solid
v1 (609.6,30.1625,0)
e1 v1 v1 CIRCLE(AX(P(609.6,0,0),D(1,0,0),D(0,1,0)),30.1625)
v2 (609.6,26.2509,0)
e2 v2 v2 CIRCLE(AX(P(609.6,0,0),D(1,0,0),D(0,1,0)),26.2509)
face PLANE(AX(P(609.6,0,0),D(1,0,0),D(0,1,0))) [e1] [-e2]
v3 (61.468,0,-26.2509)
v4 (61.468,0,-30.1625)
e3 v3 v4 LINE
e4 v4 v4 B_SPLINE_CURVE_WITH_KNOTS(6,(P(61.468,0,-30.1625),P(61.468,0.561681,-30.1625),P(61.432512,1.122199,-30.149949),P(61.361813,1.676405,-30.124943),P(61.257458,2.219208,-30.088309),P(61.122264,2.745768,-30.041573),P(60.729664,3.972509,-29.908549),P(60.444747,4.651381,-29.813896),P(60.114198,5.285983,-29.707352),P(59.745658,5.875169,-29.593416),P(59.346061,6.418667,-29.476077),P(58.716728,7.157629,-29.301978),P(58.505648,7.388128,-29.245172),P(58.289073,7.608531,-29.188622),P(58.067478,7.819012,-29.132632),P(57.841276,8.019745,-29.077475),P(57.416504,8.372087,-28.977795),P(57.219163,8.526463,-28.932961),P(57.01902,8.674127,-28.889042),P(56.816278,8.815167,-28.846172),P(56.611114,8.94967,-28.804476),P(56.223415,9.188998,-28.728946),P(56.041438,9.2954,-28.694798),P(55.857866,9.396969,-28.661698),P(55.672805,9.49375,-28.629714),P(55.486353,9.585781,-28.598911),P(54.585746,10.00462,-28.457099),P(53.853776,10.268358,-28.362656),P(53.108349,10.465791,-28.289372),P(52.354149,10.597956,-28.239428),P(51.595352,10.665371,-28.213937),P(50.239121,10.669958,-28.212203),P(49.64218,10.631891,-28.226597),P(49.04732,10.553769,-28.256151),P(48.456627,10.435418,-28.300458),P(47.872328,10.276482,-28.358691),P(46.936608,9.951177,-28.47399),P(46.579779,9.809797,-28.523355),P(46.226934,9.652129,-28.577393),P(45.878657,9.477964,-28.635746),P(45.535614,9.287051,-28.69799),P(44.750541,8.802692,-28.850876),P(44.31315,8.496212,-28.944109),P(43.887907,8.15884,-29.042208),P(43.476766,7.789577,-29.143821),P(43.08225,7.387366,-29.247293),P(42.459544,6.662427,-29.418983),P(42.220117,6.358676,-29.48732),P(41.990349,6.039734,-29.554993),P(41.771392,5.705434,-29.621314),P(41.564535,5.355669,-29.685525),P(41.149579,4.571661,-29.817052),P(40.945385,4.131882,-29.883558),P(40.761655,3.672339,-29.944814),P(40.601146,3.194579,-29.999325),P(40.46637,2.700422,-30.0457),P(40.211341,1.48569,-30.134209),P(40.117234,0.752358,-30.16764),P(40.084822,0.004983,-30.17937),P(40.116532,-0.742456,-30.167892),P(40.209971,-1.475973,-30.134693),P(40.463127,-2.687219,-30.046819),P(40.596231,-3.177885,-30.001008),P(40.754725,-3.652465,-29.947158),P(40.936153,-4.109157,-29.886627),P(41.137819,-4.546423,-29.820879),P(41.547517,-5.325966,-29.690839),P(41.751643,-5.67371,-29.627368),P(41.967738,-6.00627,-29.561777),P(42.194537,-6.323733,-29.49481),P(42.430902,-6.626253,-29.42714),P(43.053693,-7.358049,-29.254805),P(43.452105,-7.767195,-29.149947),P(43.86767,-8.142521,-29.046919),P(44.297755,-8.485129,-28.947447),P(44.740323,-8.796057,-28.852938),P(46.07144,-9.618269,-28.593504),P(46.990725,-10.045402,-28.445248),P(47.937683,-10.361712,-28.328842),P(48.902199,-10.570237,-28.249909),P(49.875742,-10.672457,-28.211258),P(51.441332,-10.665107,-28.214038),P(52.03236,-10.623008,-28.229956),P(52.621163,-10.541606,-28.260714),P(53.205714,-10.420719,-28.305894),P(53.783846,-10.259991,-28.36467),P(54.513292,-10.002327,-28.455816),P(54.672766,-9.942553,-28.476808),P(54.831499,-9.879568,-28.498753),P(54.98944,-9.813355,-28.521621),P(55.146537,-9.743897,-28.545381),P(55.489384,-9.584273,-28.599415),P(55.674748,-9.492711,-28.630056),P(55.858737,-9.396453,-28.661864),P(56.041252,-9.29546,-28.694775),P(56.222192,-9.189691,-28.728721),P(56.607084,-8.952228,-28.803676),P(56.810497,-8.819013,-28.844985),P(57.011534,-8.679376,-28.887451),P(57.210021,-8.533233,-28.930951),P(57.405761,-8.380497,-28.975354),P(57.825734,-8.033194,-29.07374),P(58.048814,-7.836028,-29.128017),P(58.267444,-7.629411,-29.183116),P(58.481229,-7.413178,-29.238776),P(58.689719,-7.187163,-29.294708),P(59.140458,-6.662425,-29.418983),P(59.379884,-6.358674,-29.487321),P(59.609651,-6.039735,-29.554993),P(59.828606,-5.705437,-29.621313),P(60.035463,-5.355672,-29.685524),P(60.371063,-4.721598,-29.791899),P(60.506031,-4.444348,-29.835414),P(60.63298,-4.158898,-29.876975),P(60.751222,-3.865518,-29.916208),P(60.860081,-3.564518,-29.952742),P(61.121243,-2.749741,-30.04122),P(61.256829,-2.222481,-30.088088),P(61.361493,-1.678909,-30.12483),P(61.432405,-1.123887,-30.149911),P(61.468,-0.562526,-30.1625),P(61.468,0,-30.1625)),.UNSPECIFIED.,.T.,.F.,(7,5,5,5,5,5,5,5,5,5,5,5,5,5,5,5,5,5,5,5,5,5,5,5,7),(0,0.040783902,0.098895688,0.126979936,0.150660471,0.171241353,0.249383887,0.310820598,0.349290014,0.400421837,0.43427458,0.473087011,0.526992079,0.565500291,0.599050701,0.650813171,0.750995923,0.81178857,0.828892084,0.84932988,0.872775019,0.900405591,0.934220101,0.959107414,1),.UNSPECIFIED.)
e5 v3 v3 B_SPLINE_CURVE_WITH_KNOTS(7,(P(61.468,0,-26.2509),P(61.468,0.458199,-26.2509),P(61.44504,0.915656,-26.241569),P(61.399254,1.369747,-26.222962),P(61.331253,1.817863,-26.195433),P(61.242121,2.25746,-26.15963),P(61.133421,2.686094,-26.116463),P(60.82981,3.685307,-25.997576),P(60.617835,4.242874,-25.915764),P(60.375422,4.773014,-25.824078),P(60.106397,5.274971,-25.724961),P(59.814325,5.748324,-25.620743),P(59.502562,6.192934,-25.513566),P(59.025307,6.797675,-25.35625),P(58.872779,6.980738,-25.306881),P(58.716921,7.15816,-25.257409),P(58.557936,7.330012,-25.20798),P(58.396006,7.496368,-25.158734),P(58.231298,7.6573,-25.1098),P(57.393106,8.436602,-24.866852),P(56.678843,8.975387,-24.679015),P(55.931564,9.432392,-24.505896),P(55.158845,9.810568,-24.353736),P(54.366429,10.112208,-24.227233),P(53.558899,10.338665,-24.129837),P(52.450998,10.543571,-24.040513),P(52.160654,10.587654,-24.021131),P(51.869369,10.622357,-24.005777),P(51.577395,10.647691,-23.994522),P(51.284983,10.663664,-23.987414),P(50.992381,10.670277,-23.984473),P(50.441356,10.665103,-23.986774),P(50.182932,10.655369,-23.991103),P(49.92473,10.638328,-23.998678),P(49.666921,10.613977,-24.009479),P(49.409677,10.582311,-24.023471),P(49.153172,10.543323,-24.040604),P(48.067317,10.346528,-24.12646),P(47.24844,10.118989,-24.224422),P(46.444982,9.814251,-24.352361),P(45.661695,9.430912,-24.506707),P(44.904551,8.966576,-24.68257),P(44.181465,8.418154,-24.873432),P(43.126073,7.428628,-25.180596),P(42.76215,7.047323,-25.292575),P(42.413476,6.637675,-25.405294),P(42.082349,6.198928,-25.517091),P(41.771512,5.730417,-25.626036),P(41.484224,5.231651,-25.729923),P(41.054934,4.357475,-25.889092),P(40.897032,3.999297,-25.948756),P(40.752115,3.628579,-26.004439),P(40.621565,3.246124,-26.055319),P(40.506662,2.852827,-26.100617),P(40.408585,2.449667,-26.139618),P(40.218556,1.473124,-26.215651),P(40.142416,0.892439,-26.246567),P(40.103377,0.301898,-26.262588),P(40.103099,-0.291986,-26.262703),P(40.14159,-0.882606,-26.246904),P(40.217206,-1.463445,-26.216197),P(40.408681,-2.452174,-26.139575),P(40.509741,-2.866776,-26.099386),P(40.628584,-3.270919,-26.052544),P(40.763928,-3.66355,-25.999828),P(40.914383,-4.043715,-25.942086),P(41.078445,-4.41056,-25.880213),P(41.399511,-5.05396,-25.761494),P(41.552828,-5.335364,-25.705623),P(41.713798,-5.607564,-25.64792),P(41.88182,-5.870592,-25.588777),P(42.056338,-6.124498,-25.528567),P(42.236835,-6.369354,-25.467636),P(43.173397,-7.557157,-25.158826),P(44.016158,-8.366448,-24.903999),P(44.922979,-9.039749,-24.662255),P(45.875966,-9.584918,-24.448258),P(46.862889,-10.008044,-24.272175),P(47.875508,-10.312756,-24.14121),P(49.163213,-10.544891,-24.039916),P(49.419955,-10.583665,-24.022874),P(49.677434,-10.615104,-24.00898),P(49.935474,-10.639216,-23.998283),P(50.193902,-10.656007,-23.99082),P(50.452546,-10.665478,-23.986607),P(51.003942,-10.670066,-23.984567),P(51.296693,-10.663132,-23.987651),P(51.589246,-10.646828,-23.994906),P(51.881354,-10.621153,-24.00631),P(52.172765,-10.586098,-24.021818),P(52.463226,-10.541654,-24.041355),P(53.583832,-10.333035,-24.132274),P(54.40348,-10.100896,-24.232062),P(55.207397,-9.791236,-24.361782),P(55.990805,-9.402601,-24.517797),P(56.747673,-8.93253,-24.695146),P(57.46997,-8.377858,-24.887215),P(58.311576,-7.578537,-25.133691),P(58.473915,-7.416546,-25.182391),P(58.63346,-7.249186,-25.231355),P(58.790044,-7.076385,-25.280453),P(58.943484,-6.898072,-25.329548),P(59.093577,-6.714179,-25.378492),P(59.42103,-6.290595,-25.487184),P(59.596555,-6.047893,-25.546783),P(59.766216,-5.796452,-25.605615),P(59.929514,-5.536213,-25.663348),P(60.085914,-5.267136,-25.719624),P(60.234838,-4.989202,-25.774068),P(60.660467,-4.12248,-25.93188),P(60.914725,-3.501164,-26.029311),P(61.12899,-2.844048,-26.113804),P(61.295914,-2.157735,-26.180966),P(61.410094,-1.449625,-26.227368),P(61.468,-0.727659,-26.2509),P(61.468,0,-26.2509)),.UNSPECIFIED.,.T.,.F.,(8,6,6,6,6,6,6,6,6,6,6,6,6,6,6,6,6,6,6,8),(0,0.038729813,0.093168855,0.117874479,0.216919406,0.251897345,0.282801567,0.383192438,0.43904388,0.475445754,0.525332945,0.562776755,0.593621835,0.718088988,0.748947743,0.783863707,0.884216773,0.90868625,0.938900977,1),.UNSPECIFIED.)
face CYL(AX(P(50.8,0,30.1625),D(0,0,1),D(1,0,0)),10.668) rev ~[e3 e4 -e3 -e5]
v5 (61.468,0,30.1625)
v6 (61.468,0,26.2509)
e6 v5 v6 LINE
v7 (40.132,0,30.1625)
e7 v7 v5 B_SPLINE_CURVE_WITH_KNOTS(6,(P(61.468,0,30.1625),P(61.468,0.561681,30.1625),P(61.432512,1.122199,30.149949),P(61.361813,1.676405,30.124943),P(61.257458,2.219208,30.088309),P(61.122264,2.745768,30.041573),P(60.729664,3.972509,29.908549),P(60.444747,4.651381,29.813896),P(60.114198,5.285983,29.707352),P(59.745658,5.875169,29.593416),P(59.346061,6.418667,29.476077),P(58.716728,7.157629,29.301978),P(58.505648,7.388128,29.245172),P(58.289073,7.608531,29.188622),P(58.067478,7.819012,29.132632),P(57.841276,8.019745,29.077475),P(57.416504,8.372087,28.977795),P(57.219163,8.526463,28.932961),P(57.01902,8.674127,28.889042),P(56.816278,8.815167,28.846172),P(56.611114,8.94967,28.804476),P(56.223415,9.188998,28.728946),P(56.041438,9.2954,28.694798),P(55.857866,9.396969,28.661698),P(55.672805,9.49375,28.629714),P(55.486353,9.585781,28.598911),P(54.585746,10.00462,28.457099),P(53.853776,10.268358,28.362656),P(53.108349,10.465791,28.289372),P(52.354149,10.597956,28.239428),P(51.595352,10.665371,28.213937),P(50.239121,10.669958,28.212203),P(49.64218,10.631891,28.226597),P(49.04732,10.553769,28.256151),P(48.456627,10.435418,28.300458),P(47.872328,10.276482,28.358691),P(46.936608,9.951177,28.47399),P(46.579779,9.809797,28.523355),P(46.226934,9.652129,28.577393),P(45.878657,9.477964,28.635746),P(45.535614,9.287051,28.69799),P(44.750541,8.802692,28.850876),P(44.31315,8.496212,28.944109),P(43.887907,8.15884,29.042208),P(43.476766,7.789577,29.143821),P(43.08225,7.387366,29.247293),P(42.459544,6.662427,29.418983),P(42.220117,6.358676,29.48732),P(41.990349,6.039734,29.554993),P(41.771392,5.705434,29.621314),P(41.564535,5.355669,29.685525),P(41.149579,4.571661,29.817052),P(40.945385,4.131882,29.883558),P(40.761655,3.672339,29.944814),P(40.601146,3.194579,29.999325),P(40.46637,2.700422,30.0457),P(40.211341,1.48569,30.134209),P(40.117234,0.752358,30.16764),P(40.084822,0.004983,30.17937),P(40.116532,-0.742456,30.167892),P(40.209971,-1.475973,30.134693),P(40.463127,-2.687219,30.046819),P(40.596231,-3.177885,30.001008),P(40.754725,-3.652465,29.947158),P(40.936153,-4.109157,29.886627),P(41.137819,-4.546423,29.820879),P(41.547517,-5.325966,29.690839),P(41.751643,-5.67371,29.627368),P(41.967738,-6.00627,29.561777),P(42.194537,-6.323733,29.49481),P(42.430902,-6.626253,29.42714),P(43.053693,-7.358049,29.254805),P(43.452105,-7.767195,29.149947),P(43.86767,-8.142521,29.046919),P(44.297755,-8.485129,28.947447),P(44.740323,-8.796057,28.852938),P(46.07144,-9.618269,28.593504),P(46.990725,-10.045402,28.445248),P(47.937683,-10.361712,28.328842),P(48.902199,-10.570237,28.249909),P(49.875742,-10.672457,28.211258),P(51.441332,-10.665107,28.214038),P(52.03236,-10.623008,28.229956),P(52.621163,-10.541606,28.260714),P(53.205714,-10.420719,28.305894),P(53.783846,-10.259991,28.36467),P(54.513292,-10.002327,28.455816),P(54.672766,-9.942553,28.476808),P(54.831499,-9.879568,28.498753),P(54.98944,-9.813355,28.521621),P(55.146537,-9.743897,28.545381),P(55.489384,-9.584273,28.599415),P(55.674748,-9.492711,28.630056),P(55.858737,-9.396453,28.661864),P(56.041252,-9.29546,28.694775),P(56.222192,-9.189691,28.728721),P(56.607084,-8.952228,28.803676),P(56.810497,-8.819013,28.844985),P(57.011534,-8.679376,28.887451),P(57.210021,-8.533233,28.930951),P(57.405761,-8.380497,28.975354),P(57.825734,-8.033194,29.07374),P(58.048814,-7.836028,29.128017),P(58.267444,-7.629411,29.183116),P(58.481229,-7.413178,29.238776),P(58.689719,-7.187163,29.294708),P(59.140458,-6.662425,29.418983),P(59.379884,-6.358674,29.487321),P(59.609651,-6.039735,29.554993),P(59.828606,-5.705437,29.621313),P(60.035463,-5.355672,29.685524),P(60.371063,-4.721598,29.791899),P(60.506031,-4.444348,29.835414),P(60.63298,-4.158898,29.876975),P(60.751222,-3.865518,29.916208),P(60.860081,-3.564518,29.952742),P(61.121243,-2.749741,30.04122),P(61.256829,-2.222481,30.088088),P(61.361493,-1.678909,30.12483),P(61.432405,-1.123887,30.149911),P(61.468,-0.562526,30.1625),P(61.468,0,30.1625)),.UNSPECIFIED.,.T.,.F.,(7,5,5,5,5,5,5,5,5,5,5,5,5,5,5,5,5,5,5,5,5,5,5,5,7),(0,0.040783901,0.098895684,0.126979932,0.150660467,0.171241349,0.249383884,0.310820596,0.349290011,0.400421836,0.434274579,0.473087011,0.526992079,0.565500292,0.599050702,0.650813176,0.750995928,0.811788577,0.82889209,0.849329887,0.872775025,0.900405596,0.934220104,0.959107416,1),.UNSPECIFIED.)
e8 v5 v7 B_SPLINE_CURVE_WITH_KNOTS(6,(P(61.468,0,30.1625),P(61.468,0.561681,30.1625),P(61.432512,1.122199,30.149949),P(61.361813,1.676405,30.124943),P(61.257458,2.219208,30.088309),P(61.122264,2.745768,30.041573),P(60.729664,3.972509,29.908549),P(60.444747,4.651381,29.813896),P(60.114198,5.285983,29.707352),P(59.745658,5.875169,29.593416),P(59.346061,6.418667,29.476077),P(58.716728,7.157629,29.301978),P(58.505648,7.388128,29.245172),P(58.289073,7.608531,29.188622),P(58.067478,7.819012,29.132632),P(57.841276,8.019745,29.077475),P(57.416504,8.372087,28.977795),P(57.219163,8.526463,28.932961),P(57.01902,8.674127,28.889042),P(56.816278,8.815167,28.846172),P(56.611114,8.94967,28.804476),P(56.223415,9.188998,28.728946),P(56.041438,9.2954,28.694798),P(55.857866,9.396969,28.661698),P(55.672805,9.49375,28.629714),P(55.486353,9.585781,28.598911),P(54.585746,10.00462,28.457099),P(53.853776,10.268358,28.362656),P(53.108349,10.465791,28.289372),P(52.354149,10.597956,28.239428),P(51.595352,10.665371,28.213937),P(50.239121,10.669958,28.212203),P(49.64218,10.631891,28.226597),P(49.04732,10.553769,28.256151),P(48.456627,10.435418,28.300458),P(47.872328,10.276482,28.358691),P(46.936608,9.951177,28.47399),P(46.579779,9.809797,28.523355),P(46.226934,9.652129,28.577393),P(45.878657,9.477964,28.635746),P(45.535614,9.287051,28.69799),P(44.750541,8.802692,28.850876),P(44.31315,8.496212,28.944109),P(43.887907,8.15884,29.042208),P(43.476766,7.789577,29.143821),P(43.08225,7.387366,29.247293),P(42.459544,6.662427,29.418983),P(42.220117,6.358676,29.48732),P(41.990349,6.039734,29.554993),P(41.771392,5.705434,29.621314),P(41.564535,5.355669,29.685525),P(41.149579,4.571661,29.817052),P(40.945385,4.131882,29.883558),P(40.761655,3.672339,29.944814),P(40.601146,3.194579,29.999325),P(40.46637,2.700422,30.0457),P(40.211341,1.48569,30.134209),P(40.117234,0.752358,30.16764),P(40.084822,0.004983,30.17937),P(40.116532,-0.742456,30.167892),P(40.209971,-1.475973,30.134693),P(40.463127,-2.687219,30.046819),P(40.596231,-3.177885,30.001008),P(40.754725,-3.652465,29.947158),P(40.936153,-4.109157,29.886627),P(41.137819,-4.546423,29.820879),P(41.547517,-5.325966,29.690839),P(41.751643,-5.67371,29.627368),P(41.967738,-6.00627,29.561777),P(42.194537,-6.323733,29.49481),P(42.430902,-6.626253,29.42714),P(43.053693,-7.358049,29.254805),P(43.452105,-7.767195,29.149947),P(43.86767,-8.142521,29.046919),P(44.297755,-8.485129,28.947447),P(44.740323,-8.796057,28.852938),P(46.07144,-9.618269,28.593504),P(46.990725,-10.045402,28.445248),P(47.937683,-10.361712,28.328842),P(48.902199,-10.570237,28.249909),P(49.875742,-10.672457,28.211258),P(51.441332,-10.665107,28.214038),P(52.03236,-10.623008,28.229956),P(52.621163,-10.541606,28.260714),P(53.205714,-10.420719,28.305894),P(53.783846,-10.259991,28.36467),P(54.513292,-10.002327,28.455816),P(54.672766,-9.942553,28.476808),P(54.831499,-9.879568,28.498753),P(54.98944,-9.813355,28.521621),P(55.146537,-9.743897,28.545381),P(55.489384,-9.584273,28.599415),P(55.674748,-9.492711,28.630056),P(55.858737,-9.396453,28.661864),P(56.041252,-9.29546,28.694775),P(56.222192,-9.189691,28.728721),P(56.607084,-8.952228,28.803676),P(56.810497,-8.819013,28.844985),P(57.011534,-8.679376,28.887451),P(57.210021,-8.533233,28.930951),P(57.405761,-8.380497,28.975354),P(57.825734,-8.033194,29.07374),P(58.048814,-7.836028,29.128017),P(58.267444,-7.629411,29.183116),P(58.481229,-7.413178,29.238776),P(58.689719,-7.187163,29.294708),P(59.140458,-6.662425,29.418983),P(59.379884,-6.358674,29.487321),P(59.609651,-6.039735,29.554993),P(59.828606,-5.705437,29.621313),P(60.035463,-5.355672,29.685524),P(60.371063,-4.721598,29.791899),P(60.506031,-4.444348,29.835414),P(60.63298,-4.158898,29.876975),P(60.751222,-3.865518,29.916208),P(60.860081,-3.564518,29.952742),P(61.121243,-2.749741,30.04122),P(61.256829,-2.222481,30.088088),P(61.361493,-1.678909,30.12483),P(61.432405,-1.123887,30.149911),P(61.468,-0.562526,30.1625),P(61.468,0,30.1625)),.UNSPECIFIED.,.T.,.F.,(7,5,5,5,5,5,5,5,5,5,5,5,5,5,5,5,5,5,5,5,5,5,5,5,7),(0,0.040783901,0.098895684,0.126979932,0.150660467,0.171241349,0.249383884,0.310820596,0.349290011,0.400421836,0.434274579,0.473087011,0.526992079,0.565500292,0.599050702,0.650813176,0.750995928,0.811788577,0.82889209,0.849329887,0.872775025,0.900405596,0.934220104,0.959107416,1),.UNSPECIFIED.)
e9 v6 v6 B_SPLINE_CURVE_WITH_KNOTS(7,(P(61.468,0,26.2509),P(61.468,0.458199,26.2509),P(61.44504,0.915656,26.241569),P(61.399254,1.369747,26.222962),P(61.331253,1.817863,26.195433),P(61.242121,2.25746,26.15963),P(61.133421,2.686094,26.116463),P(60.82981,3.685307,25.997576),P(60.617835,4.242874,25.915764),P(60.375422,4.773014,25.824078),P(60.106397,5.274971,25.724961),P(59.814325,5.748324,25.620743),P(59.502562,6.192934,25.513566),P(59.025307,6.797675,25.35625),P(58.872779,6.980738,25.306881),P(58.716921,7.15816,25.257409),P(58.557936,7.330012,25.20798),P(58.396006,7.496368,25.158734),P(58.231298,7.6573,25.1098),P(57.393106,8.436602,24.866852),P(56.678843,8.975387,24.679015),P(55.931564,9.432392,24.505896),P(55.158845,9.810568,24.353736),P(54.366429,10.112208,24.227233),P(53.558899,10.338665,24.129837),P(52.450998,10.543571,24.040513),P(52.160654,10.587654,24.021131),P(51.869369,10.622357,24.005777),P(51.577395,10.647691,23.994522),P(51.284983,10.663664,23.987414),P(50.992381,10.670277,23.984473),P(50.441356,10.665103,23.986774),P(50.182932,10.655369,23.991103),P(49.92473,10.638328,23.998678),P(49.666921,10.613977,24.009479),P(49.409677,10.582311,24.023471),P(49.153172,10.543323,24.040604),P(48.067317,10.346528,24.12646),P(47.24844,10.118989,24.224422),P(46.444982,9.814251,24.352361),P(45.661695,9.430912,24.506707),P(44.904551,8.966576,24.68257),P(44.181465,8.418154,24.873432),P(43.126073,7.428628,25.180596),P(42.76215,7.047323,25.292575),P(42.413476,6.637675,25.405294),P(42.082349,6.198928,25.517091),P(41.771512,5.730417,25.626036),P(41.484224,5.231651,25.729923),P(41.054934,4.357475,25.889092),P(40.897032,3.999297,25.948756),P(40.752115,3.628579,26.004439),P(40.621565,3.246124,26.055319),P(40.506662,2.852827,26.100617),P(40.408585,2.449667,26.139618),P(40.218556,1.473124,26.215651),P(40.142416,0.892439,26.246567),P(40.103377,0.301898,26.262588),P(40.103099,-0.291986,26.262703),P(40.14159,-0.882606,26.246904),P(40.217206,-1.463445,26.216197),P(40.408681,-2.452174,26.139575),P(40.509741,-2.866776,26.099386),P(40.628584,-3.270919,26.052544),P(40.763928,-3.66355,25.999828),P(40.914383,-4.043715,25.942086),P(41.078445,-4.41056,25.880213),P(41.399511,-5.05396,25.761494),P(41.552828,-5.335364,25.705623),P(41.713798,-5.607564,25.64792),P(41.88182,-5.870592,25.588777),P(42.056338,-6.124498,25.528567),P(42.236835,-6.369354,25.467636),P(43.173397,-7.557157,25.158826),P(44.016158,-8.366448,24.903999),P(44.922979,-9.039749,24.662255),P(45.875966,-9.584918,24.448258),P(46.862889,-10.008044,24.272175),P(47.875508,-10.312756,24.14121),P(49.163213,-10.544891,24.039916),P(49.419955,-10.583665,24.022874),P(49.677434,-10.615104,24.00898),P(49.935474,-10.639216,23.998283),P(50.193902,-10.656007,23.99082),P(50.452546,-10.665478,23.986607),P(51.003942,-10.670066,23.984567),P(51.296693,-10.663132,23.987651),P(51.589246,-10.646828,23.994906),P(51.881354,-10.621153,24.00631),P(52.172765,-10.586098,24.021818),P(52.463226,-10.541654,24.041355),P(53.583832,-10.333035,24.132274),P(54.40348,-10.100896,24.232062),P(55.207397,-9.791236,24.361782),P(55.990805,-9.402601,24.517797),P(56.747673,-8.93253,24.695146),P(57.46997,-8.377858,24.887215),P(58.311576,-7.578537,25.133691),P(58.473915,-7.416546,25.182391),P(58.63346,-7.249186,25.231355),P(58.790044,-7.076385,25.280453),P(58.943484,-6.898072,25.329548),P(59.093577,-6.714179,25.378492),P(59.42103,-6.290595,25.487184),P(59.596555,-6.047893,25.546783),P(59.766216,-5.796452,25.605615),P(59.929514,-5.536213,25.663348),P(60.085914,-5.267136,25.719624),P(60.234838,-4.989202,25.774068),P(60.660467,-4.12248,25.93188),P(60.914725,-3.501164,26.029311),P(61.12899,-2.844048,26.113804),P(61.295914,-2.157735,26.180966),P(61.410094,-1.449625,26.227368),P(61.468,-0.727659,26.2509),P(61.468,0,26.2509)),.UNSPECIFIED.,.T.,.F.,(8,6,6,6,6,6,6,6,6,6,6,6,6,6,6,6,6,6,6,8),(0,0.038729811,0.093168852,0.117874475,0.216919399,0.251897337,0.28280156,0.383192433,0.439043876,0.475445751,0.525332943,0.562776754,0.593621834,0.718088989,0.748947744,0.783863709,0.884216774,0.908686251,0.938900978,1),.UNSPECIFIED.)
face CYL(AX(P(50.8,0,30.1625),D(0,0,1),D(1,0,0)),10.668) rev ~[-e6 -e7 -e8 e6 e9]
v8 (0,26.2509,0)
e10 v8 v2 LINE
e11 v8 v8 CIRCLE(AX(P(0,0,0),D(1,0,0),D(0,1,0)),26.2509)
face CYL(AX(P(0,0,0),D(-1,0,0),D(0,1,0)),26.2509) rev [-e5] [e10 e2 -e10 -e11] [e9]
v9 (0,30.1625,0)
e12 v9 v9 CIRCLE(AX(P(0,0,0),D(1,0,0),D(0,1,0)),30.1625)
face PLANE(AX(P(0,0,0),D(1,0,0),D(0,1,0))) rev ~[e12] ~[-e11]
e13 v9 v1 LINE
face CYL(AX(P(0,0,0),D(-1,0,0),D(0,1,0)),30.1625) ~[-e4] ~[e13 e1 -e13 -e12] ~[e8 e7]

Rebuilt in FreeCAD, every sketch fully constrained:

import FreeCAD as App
import Part
import Sketcher
from FreeCAD import Vector
Q = App.Units.Quantity

doc = App.newDocument("Part")
body = doc.addObject("PartDesign::Body", "Body")

# Sketch on YZ plane
sketch1 = body.newObject("Sketcher::SketchObject", "Sketch")
sketch1.AttachmentSupport = (doc.getObject("YZ_Plane"), [""])
sketch1.MapMode = "FlatFace"
sketch1.addGeometry([
    Part.Circle(Vector(0, 0, 0), Vector(0, 0, 1), 30.1625),
    Part.Circle(Vector(0, 0, 0), Vector(0, 0, 1), 26.2509),
], False)
sketch1.addConstraint([
    Sketcher.Constraint("Coincident", 0, 3, -1, 1),
    Sketcher.Constraint("Coincident", 1, 3, -1, 1),
    Sketcher.Constraint("Diameter", 0, Q("2.375 in")),
    Sketcher.Constraint("Diameter", 1, Q("2.067 in")),
])
pad1 = body.newObject("PartDesign::Pad", "Pad")
pad1.Profile = sketch1
pad1.Length = Q("24 in")

# Sketch on XY plane
sketch2 = body.newObject("Sketcher::SketchObject", "Sketch001")
sketch2.AttachmentSupport = (doc.getObject("XY_Plane"), [""])
sketch2.MapMode = "FlatFace"
sketch2.AttachmentOffset = App.Placement(Vector(0, 0, 1.1875 * 25.4), App.Rotation())
sketch2.addGeometry(Part.Circle(Vector(50.8, 0, 0), Vector(0, 0, 1), 10.668), False)
sketch2.addConstraint([
    Sketcher.Constraint("PointOnObject", 0, 3, -1),
    Sketcher.Constraint("Diameter", 0, Q("0.84 in")),
    Sketcher.Constraint("DistanceX", -1, 1, 0, 3, Q("2 in")),
])
pocket1 = body.newObject("PartDesign::Pocket", "Pocket")
pocket1.Profile = sketch2
pocket1.Type = "ThroughAll"

doc.recompute()
